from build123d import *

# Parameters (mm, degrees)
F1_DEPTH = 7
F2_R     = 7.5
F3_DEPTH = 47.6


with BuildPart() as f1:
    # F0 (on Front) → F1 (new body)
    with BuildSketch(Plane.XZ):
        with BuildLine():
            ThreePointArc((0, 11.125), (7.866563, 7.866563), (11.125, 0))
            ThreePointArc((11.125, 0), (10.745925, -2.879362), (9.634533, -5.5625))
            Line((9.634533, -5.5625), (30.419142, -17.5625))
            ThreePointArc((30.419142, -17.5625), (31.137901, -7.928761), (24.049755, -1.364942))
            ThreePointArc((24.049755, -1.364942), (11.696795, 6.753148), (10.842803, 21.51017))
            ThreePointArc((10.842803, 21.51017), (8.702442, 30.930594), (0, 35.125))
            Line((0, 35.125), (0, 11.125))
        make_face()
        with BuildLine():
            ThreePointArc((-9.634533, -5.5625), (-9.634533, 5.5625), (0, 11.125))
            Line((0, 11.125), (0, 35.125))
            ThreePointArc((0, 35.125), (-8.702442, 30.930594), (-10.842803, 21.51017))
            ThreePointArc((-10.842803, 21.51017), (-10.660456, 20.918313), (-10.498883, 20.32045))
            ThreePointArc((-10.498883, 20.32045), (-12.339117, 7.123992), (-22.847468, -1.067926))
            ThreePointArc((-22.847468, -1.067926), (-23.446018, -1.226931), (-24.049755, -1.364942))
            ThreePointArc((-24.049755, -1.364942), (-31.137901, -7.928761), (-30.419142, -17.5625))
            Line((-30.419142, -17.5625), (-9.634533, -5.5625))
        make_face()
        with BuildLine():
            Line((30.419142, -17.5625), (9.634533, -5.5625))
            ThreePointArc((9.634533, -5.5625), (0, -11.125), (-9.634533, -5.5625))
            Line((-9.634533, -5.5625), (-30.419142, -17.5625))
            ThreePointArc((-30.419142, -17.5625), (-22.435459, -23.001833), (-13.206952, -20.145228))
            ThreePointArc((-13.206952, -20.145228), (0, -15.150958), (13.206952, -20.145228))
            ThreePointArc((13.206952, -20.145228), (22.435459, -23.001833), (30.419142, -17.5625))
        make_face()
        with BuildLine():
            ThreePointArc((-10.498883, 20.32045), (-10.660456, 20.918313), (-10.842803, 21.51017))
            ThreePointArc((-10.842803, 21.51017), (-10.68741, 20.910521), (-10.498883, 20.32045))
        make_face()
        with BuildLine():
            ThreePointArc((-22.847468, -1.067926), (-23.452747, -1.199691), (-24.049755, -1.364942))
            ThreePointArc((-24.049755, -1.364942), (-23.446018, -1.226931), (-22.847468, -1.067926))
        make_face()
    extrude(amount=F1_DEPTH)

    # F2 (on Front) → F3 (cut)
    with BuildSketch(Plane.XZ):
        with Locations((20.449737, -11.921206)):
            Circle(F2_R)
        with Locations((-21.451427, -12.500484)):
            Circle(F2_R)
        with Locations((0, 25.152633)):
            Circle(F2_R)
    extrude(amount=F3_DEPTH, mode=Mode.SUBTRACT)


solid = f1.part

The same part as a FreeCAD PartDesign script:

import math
import FreeCAD as App
import Part
import Sketcher
from FreeCAD import Vector
Q = App.Units.Quantity

doc = App.newDocument("Part")
body = doc.addObject("PartDesign::Body", "Body")

# Sketch on XZ plane
sketch1 = body.newObject("Sketcher::SketchObject", "Sketch")
sketch1.AttachmentSupport = (doc.getObject("XZ_Plane"), [""])
sketch1.MapMode = "FlatFace"
sketch1.addGeometry([
    Part.ArcOfCircle(Part.Circle(Vector(20.8, -12, 0), Vector(0, 0, 1), 11.1), math.radians(-30), math.radians(73)),  # 0
    Part.ArcOfCircle(Part.Circle(Vector(25.9, 15, 0), Vector(0, 0, 1), 16.5), math.radians(157), math.radians(263)),  # 1
    Part.ArcOfCircle(Part.Circle(Vector(0, 24, 0), Vector(0, 0, 1), 11.1), math.radians(-13), math.radians(90)),  # 2
    Part.ArcOfCircle(Part.Circle(Vector(0, 24, 0), Vector(0, 0, 1), 11.1), math.radians(90), math.radians(193)),  # 3
    Part.ArcOfCircle(Part.Circle(Vector(0, 24, 0), Vector(0, 0, 1), 11.1), math.radians(-167.07), math.radians(-160.69)),  # 4
    Part.ArcOfCircle(Part.Circle(Vector(-27.7, 16, 0), Vector(0, 0, 1), 17.7), math.radians(-74), math.radians(14)),  # 5
    Part.ArcOfCircle(Part.Circle(Vector(-20.8, -12, 0), Vector(0, 0, 1), 11.1), math.radians(100.69), math.radians(107.07)),  # 6
    Part.ArcOfCircle(Part.Circle(Vector(-20.8, -12, 0), Vector(0, 0, 1), 11.1), math.radians(107), math.radians(210)),  # 7
    Part.ArcOfCircle(Part.Circle(Vector(-20.8, -12, 0), Vector(0, 0, 1), 11.1), math.radians(-150), math.radians(-47)),  # 8
    Part.ArcOfCircle(Part.Circle(Vector(0, -35.1, 0), Vector(0, 0, 1), 20), math.radians(49), math.radians(131)),  # 9
    Part.ArcOfCircle(Part.Circle(Vector(20.8, -12, 0), Vector(0, 0, 1), 11.1), math.radians(-133), math.radians(-30)),  # 10
    Part.ArcOfCircle(Part.Circle(Vector(0, 0, 0), Vector(0, 0, 1), 11.1), math.radians(0), math.radians(90)),  # 11
    Part.ArcOfCircle(Part.Circle(Vector(0, 0, 0), Vector(0, 0, 1), 11.1), math.radians(-30), math.radians(0)),  # 12
    Part.ArcOfCircle(Part.Circle(Vector(0, 0, 0), Vector(0, 0, 1), 11.1), math.radians(-150), math.radians(-30)),  # 13
    Part.ArcOfCircle(Part.Circle(Vector(0, 0, 0), Vector(0, 0, 1), 11.1), math.radians(90), math.radians(210)),  # 14
], False)
sketch1.addConstraint([
    Sketcher.Constraint("Coincident", 0, 2, 1, 2),
    Sketcher.Constraint("Coincident", 1, 1, 2, 1),
    Sketcher.Constraint("Tangent", 2, 2, 3, 1),
    Sketcher.Constraint("Coincident", 3, 2, 4, 1),
    Sketcher.Constraint("Coincident", 4, 2, 5, 2),
    Sketcher.Constraint("Coincident", 5, 1, 6, 1),
    Sketcher.Constraint("Tangent", 6, 2, 7, 1),
    Sketcher.Constraint("Tangent", 7, 2, 8, 1),
    Sketcher.Constraint("Coincident", 8, 2, 9, 2),
    Sketcher.Constraint("Coincident", 9, 1, 10, 1),
    Sketcher.Constraint("Tangent", 10, 2, 0, 1),
    Sketcher.Constraint("Tangent", 11, 1, 12, 2),
    Sketcher.Constraint("Tangent", 12, 1, 13, 2),
    Sketcher.Constraint("Tangent", 13, 1, 14, 2),
    Sketcher.Constraint("Tangent", 14, 1, 11, 2),
    Sketcher.Constraint("Coincident", 11, 3, -1, 1),
    Sketcher.Constraint("Equal", 0, 2),
    Sketcher.Constraint("Equal", 2, 3),
    Sketcher.Constraint("Equal", 3, 7),
    Sketcher.Constraint("Equal", 7, 8),
    Sketcher.Constraint("Equal", 8, 10),
    Sketcher.Constraint("Equal", 10, 11),
    Sketcher.Constraint("Equal", 11, 12),
    Sketcher.Constraint("Symmetric", 0, 3, 7, 3, -2),
    Sketcher.Constraint("Symmetric", 1, 1, 3, 2, -2),
    Sketcher.Constraint("PointOnObject", 9, 3, -2),
    Sketcher.Constraint("PointOnObject", 2, 2, -2),
    Sketcher.Constraint("PointOnObject", 11, 1, -1),
    Sketcher.Constraint("PointOnObject", 14, 1, -2),
    Sketcher.Constraint("Horizontal", 0, 2, 6, 2),
    Sketcher.Constraint("Horizontal", 7, 2, 10, 2),
    Sketcher.Constraint("Horizontal", 12, 1, 13, 1),
    Sketcher.Constraint("DistanceY", 0, 3, -1, 1, Q("12 mm")),
    Sketcher.Constraint("DistanceY", -1, 1, 2, 3, Q("24 mm")),
    Sketcher.Constraint("Radius", 0, Q("11.125 mm")),
    Sketcher.Constraint("Radius", 5, Q("17.737192 mm")),
    Sketcher.Constraint("Radius", 6, Q("11.12495 mm")),
    Sketcher.Constraint("Radius", 1, Q("16.455885 mm")),
    Sketcher.Constraint("Radius", 4, Q("11.125533 mm")),
    Sketcher.Constraint("Radius", 9, Q("19.959505 mm")),
    Sketcher.Constraint("DistanceY", 7, 2, -1, 1, Q("17.5625 mm")),
    Sketcher.Constraint("DistanceY", 12, 1, -1, 1, Q("5.5625 mm")),
    Sketcher.Constraint("DistanceX", 0, 3, 1, 3, Q("5.163399 mm")),
    Sketcher.Constraint("DistanceY", 1, 3, 5, 3, Q("1.011498 mm")),
    Sketcher.Constraint("DistanceY", 6, 3, 4, 3, Q("36.000099 mm")),
    Sketcher.Constraint("DistanceX", -1, 1, 0, 3, Q("20.78461 mm")),
    Sketcher.Constraint("DistanceY", -1, 1, 1, 3, Q("14.98109 mm")),
    Sketcher.Constraint("DistanceY", -1, 1, 4, 2, Q("20.32045 mm")),
    Sketcher.Constraint("DistanceX", -1, 1, 9, 1, Q("13.206952 mm")),
])
pad1 = body.newObject("PartDesign::Pad", "Pad")
pad1.Profile = sketch1
pad1.Length = 7

# Sketch on XZ plane
sketch2 = body.newObject("Sketcher::SketchObject", "Sketch001")
sketch2.AttachmentSupport = (doc.getObject("XZ_Plane"), [""])
sketch2.MapMode = "FlatFace"
sketch2.addGeometry([
    Part.Circle(Vector(20, -12, 0), Vector(0, 0, 1), 8),
    Part.Circle(Vector(-21, -13, 0), Vector(0, 0, 1), 8),
    Part.Circle(Vector(0, 25, 0), Vector(0, 0, 1), 8),
], False)
sketch2.addConstraint([
    Sketcher.Constraint("Equal", 0, 1),
    Sketcher.Constraint("Equal", 1, 2),
    Sketcher.Constraint("PointOnObject", 2, 3, -2),
    Sketcher.Constraint("Diameter", 0, Q("15 mm")),
    Sketcher.Constraint("DistanceY", 1, 3, 0, 3, Q("0.579278 mm")),
    Sketcher.Constraint("DistanceY", 0, 3, 2, 3, Q("37.073839 mm")),
    Sketcher.Constraint("DistanceX", -1, 1, 0, 3, Q("20.449737 mm")),
    Sketcher.Constraint("DistanceY", 0, 3, -1, 1, Q("11.921206 mm")),
    Sketcher.Constraint("DistanceX", 1, 3, -1, 1, Q("21.451427 mm")),
])
pocket1 = body.newObject("PartDesign::Pocket", "Pocket")
pocket1.Profile = sketch2
pocket1.Length = 47.6
pocket1.Reversed = True

doc.recompute()
